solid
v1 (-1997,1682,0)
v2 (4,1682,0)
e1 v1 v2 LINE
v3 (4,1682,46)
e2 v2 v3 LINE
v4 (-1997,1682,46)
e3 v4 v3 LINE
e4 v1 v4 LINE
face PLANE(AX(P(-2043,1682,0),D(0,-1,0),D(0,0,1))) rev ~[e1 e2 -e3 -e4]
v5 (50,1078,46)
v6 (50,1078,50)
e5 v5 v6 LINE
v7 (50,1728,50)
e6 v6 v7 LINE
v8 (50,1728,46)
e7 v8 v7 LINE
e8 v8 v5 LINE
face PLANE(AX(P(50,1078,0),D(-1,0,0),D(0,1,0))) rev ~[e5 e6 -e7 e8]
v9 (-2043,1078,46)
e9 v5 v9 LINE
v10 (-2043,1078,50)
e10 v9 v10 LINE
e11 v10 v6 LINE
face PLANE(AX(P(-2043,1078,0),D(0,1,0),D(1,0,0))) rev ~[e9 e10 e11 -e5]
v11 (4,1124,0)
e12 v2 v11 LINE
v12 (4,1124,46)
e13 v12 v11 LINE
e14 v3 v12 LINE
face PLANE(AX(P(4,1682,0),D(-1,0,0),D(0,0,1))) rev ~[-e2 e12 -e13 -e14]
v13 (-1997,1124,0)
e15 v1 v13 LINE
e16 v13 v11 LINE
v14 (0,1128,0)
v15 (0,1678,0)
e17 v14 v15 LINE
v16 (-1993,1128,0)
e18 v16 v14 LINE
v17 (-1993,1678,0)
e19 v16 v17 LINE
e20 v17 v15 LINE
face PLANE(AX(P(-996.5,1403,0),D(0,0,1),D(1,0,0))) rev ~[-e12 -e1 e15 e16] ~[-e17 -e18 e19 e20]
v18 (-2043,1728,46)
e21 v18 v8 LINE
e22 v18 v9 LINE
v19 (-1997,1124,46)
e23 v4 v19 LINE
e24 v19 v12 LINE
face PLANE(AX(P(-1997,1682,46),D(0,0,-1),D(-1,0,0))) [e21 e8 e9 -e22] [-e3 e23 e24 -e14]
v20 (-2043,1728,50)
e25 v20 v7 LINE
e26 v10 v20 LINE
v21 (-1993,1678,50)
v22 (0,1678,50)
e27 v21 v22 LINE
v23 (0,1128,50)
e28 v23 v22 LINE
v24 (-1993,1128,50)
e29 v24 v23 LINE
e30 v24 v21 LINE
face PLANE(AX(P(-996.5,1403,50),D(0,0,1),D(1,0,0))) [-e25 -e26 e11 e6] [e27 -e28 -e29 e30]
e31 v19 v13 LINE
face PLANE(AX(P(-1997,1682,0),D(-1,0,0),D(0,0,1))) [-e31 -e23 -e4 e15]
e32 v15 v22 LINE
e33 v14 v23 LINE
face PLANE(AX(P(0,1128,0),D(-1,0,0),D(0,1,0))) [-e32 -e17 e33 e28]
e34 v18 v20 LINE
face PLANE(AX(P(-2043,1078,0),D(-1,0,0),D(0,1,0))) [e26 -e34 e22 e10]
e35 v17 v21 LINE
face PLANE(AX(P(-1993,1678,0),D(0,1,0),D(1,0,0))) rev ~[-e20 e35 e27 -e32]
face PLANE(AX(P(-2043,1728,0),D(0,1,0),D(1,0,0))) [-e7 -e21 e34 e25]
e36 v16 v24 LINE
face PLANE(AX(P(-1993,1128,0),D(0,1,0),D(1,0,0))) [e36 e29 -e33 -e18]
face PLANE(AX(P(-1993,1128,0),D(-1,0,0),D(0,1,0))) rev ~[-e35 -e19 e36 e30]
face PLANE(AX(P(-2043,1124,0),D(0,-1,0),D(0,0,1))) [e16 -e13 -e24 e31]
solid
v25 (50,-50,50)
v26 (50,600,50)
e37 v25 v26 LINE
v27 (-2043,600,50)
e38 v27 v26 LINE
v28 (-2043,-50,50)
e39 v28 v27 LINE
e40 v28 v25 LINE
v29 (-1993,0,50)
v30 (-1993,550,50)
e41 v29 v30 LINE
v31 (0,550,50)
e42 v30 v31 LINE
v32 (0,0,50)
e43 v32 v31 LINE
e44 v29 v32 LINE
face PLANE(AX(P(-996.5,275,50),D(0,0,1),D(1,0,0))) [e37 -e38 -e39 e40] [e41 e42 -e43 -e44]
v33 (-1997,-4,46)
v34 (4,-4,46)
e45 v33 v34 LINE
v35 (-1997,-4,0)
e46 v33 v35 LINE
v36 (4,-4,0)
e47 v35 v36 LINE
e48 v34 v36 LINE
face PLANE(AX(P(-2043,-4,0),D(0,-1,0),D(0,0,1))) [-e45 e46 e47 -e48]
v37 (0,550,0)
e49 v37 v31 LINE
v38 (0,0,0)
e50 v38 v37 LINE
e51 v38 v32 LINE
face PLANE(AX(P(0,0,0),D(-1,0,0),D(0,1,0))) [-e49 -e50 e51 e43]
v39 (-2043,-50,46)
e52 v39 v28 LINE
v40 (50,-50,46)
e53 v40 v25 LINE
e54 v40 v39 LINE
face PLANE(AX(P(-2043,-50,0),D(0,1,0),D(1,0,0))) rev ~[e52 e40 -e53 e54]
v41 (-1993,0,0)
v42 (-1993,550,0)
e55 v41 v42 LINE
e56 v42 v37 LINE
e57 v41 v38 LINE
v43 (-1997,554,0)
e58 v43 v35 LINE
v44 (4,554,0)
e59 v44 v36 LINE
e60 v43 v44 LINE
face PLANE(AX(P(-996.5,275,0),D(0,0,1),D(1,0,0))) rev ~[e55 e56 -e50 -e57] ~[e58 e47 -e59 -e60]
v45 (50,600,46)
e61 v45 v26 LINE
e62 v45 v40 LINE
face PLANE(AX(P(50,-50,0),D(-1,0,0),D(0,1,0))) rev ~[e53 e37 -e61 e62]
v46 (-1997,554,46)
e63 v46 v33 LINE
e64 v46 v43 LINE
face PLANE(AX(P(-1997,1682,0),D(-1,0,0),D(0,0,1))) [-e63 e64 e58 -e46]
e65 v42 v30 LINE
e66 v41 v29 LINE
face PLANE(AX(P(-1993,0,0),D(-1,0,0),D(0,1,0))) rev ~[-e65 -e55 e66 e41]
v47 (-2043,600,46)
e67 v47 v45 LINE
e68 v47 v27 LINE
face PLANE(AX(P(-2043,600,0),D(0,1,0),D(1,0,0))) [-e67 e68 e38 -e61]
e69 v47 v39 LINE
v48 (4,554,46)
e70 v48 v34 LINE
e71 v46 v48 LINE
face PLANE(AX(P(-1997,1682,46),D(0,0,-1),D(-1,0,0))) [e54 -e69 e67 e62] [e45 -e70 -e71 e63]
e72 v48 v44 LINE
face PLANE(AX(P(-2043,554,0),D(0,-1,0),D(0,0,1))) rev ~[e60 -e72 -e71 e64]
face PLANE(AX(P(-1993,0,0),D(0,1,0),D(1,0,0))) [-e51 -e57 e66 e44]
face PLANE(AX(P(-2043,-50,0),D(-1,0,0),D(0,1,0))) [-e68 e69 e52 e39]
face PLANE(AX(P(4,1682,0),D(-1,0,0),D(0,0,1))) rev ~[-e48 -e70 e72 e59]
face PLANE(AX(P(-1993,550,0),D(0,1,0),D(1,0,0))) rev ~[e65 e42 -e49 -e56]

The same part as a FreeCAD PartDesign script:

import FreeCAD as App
import Part
import Sketcher

V = App.Vector
Q = App.Units.Quantity


def add_polygon(sketch, points):
    """Adds a closed chain of lines whose ends are joined by coincident constraints."""
    first, n = sketch.GeometryCount, len(points)
    for a, b in zip(points, points[1:] + points[:1]):
        sketch.addGeometry(Part.LineSegment(App.Vector(*a, 0), App.Vector(*b, 0)), False)
    for i in range(n):
        sketch.addConstraint(Sketcher.Constraint("Coincident", first + i, 2, first + (i + 1) % n, 1))

doc = App.newDocument("Part")
body = doc.addObject("PartDesign::Body", "Body")
body.AllowCompound = True

# Sketch on XY plane
sketch1 = doc.addObject("Sketcher::SketchObject", "Sketch")
body.addObject(sketch1)
sketch1.AttachmentSupport = (doc.XY_Plane, [""])
sketch1.MapMode = "FlatFace"
add_polygon(sketch1, [(-2043, 600), (-2043, -50), (50, -50), (50, 600)])  # lines 0-3
add_polygon(sketch1, [(0, 0), (-1993, 0), (-1993, 550), (0, 550)])  # lines 4-7
add_polygon(sketch1, [(-2043, 1728), (-2043, 1078), (50, 1078), (50, 1728)])  # lines 8-11
add_polygon(sketch1, [(0, 1128), (-1993, 1128), (-1993, 1678), (0, 1678)])  # lines 12-15
sketch1.addConstraint([
    Sketcher.Constraint("Vertical", 0),
    Sketcher.Constraint("Horizontal", 1),
    Sketcher.Constraint("Vertical", 2),
    Sketcher.Constraint("Horizontal", 3),
    Sketcher.Constraint("Horizontal", 4),
    Sketcher.Constraint("Vertical", 5),
    Sketcher.Constraint("Horizontal", 6),
    Sketcher.Constraint("Vertical", 7),
    Sketcher.Constraint("Vertical", 8),
    Sketcher.Constraint("Horizontal", 9),
    Sketcher.Constraint("Vertical", 10),
    Sketcher.Constraint("Horizontal", 11),
    Sketcher.Constraint("Horizontal", 12),
    Sketcher.Constraint("Vertical", 13),
    Sketcher.Constraint("Horizontal", 14),
    Sketcher.Constraint("Vertical", 15),
    Sketcher.Constraint("Coincident", 7, 2, -1, 1),
    Sketcher.Constraint("PointOnObject", 14, 2, -2),
    Sketcher.Constraint("Vertical", 3, 2, 8, 2),
    Sketcher.Constraint("Vertical", 2, 2, 9, 2),
    Sketcher.Constraint("Vertical", 5, 2, 12, 2),
    Sketcher.Constraint("Equal", 2, 8),
    Sketcher.Constraint("Equal", 7, 13),
    Sketcher.Constraint("DistanceX", 1, 1, 1, 2, Q("2093 mm")),
    Sketcher.Constraint("DistanceX", 4, 2, 4, 1, Q("1993 mm")),
    Sketcher.Constraint("DistanceY", 0, 2, 0, 1, Q("650 mm")),
    Sketcher.Constraint("DistanceY", 5, 1, 5, 2, Q("550 mm")),
    Sketcher.Constraint("DistanceX", 0, 2, -1, 1, Q("2043 mm")),
    Sketcher.Constraint("DistanceY", 0, 2, -1, 1, Q("50 mm")),
    Sketcher.Constraint("DistanceY", -1, 1, 8, 2, Q("1078 mm")),
    Sketcher.Constraint("DistanceY", -1, 1, 12, 2, Q("1128 mm")),
])
pad1 = doc.addObject("PartDesign::Pad", "Pad")
body.addObject(pad1)
pad1.Profile = sketch1
pad1.Length = 50

# Sketch on YZ plane
sketch2 = doc.addObject("Sketcher::SketchObject", "Sketch001")
body.addObject(sketch2)
sketch2.AttachmentSupport = (doc.YZ_Plane, [""])
sketch2.MapMode = "FlatFace"
sketch2.AttachmentOffset = App.Placement(V(0, 0, -2043), App.Rotation())
add_polygon(sketch2, [(1728, 46), (1728, 0), (1682, 0), (1682, 46)])  # lines 0-3
add_polygon(sketch2, [(1124, 46), (1124, 0), (1078, 0), (1078, 46)])  # lines 4-7
add_polygon(sketch2, [(600, 46), (600, 0), (554, 0), (554, 46)])  # lines 8-11
add_polygon(sketch2, [(-4, 46), (-4, 0), (-50, 0), (-50, 46)])  # lines 12-15
sketch2.addConstraint([
    Sketcher.Constraint("Vertical", 0),
    Sketcher.Constraint("Horizontal", 1),
    Sketcher.Constraint("Vertical", 2),
    Sketcher.Constraint("Horizontal", 3),
    Sketcher.Constraint("Vertical", 4),
    Sketcher.Constraint("Horizontal", 5),
    Sketcher.Constraint("Vertical", 6),
    Sketcher.Constraint("Horizontal", 7),
    Sketcher.Constraint("Vertical", 8),
    Sketcher.Constraint("Horizontal", 9),
    Sketcher.Constraint("Vertical", 10),
    Sketcher.Constraint("Horizontal", 11),
    Sketcher.Constraint("Vertical", 12),
    Sketcher.Constraint("Horizontal", 13),
    Sketcher.Constraint("Vertical", 14),
    Sketcher.Constraint("Horizontal", 15),
    Sketcher.Constraint("PointOnObject", 0, 2, -1),
    Sketcher.Constraint("PointOnObject", 4, 2, -1),
    Sketcher.Constraint("PointOnObject", 8, 2, -1),
    Sketcher.Constraint("PointOnObject", 12, 2, -1),
    Sketcher.Constraint("Horizontal", 3, 2, 6, 2),
    Sketcher.Constraint("Horizontal", 7, 2, 10, 2),
    Sketcher.Constraint("Horizontal", 11, 2, 14, 2),
    Sketcher.Constraint("Equal", 3, 5),
    Sketcher.Constraint("Equal", 7, 9),
    Sketcher.Constraint("Equal", 11, 13),
    Sketcher.Constraint("Equal", 15, 0),
    Sketcher.Constraint("DistanceX", 1, 2, 1, 1, Q("46 mm")),
    Sketcher.Constraint("DistanceX", -1, 1, 0, 2, Q("1728 mm")),
    Sketcher.Constraint("DistanceX", -1, 1, 4, 2, Q("1124 mm")),
    Sketcher.Constraint("DistanceX", -1, 1, 8, 2, Q("600 mm")),
    Sketcher.Constraint("DistanceX", 12, 2, -1, 1, Q("4 mm")),
])
pocket1 = doc.addObject("PartDesign::Pocket", "Pocket")
body.addObject(pocket1)
pocket1.Profile = sketch2
pocket1.Length = 3000
pocket1.Reversed = True

# Sketch on XZ plane
sketch3 = doc.addObject("Sketcher::SketchObject", "Sketch002")
body.addObject(sketch3)
sketch3.AttachmentSupport = (doc.XZ_Plane, [""])
sketch3.MapMode = "FlatFace"
sketch3.AttachmentOffset = App.Placement(V(0, 0, -1682), App.Rotation())
add_polygon(sketch3, [(50, 46), (50, 0), (4, 0), (4, 46)])  # lines 0-3
add_polygon(sketch3, [(-1997, 46), (-1997, 0), (-2043, 0), (-2043, 46)])  # lines 4-7
sketch3.addConstraint([
    Sketcher.Constraint("Vertical", 0),
    Sketcher.Constraint("Horizontal", 1),
    Sketcher.Constraint("Vertical", 2),
    Sketcher.Constraint("Horizontal", 3),
    Sketcher.Constraint("Vertical", 4),
    Sketcher.Constraint("Horizontal", 5),
    Sketcher.Constraint("Vertical", 6),
    Sketcher.Constraint("Horizontal", 7),
    Sketcher.Constraint("PointOnObject", 0, 2, -1),
    Sketcher.Constraint("PointOnObject", 4, 2, -1),
    Sketcher.Constraint("Horizontal", 3, 2, 6, 2),
    Sketcher.Constraint("Equal", 3, 5),
    Sketcher.Constraint("Equal", 7, 0),
    Sketcher.Constraint("DistanceX", 1, 2, 1, 1, Q("46 mm")),
    Sketcher.Constraint("DistanceX", -1, 1, 0, 2, Q("50 mm")),
    Sketcher.Constraint("DistanceX", 4, 2, -1, 1, Q("1997 mm")),
])
pocket2 = doc.addObject("PartDesign::Pocket", "Pocket001")
body.addObject(pocket2)
pocket2.Profile = sketch3
pocket2.Length = 3000
pocket2.Reversed = True

doc.recompute()
